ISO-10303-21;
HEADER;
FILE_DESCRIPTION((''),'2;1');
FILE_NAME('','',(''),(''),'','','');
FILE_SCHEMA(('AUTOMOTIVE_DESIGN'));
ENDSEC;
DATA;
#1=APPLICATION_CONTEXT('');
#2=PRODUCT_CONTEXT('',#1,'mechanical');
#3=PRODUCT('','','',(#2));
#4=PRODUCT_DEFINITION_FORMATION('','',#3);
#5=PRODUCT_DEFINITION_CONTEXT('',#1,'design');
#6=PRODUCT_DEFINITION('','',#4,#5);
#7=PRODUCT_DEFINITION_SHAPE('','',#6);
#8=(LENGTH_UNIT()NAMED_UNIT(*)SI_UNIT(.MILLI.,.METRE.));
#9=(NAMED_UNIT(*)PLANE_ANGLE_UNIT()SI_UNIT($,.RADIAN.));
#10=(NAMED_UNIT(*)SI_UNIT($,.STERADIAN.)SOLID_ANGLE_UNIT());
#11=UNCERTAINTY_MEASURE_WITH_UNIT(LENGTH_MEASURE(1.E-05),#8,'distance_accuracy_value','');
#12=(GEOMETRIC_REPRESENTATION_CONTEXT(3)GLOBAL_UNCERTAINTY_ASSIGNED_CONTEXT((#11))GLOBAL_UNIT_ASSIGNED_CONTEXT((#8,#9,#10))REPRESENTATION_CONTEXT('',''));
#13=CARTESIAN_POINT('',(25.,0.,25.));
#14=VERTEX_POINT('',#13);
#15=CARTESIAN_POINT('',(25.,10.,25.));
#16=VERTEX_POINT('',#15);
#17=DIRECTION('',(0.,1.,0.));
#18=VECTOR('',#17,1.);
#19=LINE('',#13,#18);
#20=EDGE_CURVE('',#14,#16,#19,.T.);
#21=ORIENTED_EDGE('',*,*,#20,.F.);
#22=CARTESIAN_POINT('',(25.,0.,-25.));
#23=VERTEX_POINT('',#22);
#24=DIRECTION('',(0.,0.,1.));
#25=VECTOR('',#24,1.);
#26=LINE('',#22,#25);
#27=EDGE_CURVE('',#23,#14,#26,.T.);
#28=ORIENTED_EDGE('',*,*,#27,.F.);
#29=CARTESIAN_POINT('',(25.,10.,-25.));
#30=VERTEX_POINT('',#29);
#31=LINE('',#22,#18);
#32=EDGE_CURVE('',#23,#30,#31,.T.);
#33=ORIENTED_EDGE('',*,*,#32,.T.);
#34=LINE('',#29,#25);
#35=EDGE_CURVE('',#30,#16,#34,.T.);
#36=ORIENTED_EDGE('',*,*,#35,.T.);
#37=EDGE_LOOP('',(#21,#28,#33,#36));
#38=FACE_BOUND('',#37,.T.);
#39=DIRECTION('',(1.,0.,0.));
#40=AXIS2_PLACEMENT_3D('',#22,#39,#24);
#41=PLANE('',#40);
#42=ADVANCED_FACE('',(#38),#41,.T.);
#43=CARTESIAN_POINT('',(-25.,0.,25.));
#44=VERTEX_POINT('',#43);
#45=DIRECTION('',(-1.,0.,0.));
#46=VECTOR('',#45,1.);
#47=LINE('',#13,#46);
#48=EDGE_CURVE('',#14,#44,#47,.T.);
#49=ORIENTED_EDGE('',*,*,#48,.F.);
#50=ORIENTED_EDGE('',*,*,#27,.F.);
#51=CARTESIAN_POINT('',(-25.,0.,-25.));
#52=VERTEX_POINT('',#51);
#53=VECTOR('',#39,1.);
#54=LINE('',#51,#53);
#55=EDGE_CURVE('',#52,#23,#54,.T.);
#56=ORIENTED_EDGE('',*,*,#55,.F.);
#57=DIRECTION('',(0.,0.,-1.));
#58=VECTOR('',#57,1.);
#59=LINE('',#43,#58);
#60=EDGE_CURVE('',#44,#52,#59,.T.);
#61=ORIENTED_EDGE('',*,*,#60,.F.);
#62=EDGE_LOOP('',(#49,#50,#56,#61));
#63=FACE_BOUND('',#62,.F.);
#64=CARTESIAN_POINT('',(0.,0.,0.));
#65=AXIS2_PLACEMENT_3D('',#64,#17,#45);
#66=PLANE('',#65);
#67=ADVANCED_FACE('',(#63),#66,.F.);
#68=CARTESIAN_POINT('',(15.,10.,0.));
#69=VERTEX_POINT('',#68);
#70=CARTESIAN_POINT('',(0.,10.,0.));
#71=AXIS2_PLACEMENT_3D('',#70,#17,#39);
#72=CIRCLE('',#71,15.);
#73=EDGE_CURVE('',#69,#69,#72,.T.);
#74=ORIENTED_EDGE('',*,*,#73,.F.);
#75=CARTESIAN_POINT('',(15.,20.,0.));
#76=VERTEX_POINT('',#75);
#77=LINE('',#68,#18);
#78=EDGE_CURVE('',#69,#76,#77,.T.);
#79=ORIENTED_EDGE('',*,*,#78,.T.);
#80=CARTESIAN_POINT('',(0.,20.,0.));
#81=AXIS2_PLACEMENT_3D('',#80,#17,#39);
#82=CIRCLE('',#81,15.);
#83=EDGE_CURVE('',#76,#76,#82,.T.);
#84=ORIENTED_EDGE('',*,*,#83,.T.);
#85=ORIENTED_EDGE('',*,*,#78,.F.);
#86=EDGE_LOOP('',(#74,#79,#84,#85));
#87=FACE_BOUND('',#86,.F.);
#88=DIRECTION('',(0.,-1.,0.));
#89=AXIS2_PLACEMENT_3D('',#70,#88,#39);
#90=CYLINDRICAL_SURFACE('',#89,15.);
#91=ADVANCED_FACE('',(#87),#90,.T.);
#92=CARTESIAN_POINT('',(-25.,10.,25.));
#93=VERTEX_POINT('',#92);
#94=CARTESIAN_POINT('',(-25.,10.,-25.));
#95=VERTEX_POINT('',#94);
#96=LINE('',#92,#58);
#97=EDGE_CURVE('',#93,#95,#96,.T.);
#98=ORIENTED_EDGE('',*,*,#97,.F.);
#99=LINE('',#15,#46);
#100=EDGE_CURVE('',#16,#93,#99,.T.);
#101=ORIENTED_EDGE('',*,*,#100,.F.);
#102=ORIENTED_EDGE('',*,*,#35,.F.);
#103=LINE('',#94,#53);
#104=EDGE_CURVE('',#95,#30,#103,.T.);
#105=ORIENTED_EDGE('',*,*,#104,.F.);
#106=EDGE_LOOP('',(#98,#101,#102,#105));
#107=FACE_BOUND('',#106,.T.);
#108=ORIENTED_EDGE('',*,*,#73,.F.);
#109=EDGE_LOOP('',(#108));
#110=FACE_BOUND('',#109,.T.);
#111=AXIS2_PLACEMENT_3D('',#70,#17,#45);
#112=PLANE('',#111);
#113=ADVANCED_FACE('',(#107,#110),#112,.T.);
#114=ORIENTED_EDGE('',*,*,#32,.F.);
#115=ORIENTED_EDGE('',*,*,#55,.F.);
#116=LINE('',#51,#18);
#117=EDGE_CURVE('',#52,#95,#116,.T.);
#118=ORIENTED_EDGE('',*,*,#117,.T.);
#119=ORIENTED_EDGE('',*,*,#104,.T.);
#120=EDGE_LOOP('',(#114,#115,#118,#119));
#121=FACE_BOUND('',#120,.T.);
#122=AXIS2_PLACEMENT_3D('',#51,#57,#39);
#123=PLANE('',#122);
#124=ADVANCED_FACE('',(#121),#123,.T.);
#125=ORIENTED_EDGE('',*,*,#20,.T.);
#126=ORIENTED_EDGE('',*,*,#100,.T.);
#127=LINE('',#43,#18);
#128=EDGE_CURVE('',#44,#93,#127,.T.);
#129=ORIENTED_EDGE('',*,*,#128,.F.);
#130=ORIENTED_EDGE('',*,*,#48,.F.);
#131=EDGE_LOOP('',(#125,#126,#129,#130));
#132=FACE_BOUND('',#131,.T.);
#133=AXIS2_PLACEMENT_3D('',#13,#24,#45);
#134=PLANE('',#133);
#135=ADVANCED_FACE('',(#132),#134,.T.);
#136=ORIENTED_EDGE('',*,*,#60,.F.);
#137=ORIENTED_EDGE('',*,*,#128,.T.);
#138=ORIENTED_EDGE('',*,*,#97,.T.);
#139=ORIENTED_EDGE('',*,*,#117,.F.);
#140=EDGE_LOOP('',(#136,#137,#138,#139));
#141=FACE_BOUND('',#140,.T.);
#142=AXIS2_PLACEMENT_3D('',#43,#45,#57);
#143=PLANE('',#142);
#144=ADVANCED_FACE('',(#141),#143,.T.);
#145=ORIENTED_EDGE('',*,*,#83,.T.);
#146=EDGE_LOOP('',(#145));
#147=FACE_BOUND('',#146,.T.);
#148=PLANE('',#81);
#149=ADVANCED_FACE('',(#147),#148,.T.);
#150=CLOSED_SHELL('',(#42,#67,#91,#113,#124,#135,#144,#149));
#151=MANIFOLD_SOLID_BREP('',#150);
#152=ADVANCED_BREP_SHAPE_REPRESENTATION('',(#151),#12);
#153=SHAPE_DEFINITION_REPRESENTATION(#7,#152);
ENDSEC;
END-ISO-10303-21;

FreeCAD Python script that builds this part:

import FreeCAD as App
import Part
import Sketcher
Q = App.Units.Quantity

doc = App.newDocument("Part")
params = doc.addObject("Spreadsheet::Sheet", "Params")
for row, (alias, value) in enumerate([
    ("sketch1_width", "50 mm"),
    ("pad1_length", "10 mm"),
    ("sketch2_diameter", "30 mm"),
    ("pad2_length", "10 mm"),
], start=1):
    params.set(f"A{row}", alias)
    params.set(f"B{row}", "=" + value)
    params.setAlias(f"B{row}", alias)

body = doc.addObject("PartDesign::Body", "Body")

sketch1 = body.newObject("Sketcher::SketchObject", "Sketch")
sketch1.AttachmentSupport = (doc.getObject("XZ_Plane"), [""])
sketch1.MapMode = "FlatFace"
sketch1.addGeometry([
    Part.LineSegment(App.Vector(-25, 25, 0), App.Vector(25, 25, 0)),
    Part.LineSegment(App.Vector(25, 25, 0), App.Vector(25, -25, 0)),
    Part.LineSegment(App.Vector(25, -25, 0), App.Vector(-25, -25, 0)),
    Part.LineSegment(App.Vector(-25, -25, 0), App.Vector(-25, 25, 0)),
], False)
sketch1.addConstraint([
    Sketcher.Constraint("Coincident", 0, 2, 1, 1),
    Sketcher.Constraint("Coincident", 1, 2, 2, 1),
    Sketcher.Constraint("Coincident", 2, 2, 3, 1),
    Sketcher.Constraint("Coincident", 3, 2, 0, 1),
    Sketcher.Constraint("Horizontal", 0),
    Sketcher.Constraint("Vertical", 1),
    Sketcher.Constraint("Horizontal", 2),
    Sketcher.Constraint("Vertical", 3),
    Sketcher.Constraint("Symmetric", 0, 2, 2, 2, -1, 1),
    Sketcher.Constraint("Equal", 2, 1),
    Sketcher.Constraint("DistanceX", 0, 1, 0, 2, Q("50 mm")),
])
sketch1.setExpression("Constraints[10]", "Params.sketch1_width")
pad1 = body.newObject("PartDesign::Pad", "Pad")
pad1.Profile = sketch1
pad1.setExpression("Length", "Params.pad1_length")
pad1.Reversed = True

sketch2 = body.newObject("Sketcher::SketchObject", "Sketch001")
sketch2.AttachmentSupport = (doc.getObject("XZ_Plane"), [""])
sketch2.MapMode = "FlatFace"
sketch2.AttachmentOffset = App.Placement(App.Vector(0, 0, -10), App.Rotation())
sketch2.addGeometry(Part.Circle(App.Vector(0, 0, 0), App.Vector(0, 0, 1), 15), False)
sketch2.addConstraint([
    Sketcher.Constraint("Coincident", 0, 3, -1, 1),
    Sketcher.Constraint("Diameter", 0, Q("30 mm")),
])
sketch2.setExpression("Constraints[1]", "Params.sketch2_diameter")
pad2 = body.newObject("PartDesign::Pad", "Pad001")
pad2.Profile = sketch2
pad2.setExpression("Length", "Params.pad2_length")
pad2.Reversed = True

doc.recompute()
